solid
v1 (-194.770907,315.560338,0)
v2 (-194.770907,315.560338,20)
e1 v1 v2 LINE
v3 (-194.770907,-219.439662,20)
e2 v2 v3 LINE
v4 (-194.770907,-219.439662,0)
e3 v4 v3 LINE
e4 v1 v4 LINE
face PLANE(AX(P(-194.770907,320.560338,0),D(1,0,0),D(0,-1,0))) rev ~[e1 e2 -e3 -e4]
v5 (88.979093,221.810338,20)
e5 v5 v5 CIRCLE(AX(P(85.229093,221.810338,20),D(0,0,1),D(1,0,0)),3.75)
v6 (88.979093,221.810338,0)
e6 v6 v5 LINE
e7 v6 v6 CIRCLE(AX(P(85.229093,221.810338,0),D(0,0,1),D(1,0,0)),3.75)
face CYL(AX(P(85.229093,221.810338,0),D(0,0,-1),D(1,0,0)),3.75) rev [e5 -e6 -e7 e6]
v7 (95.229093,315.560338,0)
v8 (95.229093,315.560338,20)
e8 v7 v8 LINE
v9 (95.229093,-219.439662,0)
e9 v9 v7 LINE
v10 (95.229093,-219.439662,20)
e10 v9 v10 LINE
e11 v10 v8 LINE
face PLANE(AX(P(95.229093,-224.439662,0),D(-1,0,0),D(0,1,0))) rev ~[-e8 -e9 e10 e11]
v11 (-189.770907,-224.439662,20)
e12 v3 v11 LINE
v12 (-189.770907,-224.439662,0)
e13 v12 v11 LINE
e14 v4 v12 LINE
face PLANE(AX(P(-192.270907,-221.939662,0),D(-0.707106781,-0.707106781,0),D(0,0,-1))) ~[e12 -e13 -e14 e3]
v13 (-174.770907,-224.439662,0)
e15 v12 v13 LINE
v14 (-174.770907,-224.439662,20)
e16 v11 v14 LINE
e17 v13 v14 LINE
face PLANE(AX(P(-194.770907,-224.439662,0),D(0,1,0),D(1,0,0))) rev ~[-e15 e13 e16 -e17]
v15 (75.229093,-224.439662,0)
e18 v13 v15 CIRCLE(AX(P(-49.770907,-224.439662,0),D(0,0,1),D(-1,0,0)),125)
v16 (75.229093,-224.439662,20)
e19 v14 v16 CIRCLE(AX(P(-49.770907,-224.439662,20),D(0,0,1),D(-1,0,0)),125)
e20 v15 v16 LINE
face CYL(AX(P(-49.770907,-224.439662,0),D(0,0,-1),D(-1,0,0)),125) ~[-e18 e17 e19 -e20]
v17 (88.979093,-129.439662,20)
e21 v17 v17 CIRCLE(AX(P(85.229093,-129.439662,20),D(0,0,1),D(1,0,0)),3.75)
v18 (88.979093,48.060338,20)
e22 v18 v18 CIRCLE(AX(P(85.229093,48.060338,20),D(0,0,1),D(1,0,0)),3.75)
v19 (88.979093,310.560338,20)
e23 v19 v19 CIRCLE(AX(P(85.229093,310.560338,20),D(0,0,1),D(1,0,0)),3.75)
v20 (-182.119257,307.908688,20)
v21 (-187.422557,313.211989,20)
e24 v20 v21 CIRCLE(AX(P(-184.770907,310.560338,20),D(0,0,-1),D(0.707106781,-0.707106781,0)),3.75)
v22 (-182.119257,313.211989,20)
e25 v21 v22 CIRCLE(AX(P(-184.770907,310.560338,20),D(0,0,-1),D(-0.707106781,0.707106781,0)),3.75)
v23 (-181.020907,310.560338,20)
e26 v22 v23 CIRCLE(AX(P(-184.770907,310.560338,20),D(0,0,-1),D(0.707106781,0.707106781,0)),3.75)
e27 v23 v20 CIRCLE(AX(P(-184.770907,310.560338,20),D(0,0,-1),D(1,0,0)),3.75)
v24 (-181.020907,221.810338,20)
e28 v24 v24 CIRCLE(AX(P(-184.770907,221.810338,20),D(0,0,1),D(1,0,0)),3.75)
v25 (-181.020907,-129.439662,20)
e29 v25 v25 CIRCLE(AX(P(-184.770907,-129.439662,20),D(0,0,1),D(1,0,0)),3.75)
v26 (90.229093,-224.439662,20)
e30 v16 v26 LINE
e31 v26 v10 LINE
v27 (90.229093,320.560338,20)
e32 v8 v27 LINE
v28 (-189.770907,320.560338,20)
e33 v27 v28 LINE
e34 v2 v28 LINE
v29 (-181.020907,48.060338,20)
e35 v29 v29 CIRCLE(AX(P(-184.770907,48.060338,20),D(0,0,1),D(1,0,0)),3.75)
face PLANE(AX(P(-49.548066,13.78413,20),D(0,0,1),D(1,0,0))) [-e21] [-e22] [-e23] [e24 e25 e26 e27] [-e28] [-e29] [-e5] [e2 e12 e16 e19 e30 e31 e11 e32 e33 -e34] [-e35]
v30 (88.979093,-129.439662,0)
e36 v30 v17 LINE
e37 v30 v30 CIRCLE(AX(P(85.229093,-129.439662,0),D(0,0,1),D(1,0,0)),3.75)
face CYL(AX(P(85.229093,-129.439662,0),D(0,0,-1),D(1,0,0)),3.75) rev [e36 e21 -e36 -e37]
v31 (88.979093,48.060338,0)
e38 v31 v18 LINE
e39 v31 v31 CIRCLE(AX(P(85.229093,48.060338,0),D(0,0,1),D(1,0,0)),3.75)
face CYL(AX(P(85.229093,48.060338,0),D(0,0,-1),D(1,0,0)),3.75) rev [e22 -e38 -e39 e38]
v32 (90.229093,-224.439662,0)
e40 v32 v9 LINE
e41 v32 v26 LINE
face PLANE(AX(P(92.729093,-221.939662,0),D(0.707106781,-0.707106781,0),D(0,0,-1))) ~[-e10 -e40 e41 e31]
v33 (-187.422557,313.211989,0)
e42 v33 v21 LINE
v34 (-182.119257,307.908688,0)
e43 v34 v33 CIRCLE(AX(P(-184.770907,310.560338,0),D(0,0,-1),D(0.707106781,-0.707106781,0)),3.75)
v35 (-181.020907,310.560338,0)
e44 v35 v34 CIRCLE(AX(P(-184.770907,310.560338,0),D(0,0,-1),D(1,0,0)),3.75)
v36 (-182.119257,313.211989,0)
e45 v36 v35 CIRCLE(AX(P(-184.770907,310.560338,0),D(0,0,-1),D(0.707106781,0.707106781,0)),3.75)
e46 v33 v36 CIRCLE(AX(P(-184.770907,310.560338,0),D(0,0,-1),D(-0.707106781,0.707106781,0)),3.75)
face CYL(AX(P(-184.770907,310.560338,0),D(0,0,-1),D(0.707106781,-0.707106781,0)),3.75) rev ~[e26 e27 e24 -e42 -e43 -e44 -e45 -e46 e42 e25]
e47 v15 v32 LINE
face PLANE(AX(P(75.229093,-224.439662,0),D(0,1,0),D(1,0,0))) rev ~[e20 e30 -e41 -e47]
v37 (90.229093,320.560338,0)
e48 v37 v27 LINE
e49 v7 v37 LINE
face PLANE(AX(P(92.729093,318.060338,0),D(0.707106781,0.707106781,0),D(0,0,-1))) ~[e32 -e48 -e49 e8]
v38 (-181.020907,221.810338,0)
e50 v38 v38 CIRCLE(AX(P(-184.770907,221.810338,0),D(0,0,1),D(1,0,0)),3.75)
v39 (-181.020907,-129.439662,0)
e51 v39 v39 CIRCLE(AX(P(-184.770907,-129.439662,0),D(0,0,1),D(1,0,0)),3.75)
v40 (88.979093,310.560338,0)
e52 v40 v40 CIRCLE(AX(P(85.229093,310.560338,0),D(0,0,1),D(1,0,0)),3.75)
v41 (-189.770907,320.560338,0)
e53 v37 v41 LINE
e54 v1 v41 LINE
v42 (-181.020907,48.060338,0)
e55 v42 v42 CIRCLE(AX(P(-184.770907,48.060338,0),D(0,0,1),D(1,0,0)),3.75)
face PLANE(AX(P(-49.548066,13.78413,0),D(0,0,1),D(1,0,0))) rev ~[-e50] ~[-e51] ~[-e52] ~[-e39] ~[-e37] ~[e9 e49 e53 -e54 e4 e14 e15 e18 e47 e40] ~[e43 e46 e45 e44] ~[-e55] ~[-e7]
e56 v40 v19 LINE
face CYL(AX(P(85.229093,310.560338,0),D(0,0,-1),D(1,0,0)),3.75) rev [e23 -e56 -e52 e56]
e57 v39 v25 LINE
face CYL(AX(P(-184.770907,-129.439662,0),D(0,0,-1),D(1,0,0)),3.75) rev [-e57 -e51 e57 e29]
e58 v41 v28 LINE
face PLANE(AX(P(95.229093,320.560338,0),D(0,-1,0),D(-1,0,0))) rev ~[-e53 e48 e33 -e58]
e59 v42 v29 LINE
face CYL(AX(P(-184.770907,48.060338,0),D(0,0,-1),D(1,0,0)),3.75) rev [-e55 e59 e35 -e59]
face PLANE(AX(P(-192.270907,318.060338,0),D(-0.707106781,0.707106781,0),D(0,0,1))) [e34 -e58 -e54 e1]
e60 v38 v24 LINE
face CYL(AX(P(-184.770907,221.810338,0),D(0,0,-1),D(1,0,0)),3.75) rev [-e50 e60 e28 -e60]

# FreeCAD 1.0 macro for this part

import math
import FreeCAD as App
import Part
import Sketcher
Q = App.Units.Quantity


def edges_at(feature, points):
    """Names of the edges that pass closest to the given points."""
    edges = feature.Shape.Edges
    near = lambda p: min(range(len(edges)), key=lambda i: edges[i].distToShape(Part.Vertex(*p))[0])
    return sorted({f"Edge{near(p) + 1}" for p in points})

doc = App.newDocument("Part")
body = doc.addObject("PartDesign::Body", "Body")

sketch1 = doc.addObject("Sketcher::SketchObject", "Sketch")
body.addObject(sketch1)
sketch1.AttachmentSupport = (doc.XY_Plane, [""])
sketch1.MapMode = "FlatFace"
sketch1.addGeometry(Part.LineSegment(App.Vector(-194.8, 320.6, 0), App.Vector(-194.8, -224.4, 0)), False)
sketch1.addGeometry(Part.LineSegment(App.Vector(-194.8, -224.4, 0), App.Vector(-174.8, -224.4, 0)), False)
sketch1.addGeometry(Part.ArcOfCircle(Part.Circle(App.Vector(-49.8, -224.4, 0), App.Vector(0, 0, 1), 125), math.radians(180), math.radians(360)), False)
sketch1.addGeometry(Part.LineSegment(App.Vector(75.2, -224.4, 0), App.Vector(95.2, -224.4, 0)), False)
sketch1.addGeometry(Part.LineSegment(App.Vector(95.2, -224.4, 0), App.Vector(95.2, 320.6, 0)), False)
sketch1.addGeometry(Part.LineSegment(App.Vector(95.2, 320.6, 0), App.Vector(-194.8, 320.6, 0)), False)
sketch1.addGeometry(Part.Circle(App.Vector(-184.8, -129.4, 0), App.Vector(0, 0, 1), 3.8), False)
sketch1.addGeometry(Part.Circle(App.Vector(-184.8, 48.1, 0), App.Vector(0, 0, 1), 3.8), False)
sketch1.addGeometry(Part.Circle(App.Vector(85.2, -129.4, 0), App.Vector(0, 0, 1), 3.8), False)
sketch1.addGeometry(Part.Circle(App.Vector(85.2, 48.1, 0), App.Vector(0, 0, 1), 3.8), False)
sketch1.addGeometry(Part.Circle(App.Vector(-184.8, 221.8, 0), App.Vector(0, 0, 1), 3.8), False)
sketch1.addGeometry(Part.ArcOfCircle(Part.Circle(App.Vector(-184.8, 310.6, 0), App.Vector(0, 0, 1), 3.8), math.radians(-45), math.radians(0)), False)
sketch1.addGeometry(Part.ArcOfCircle(Part.Circle(App.Vector(-184.8, 310.6, 0), App.Vector(0, 0, 1), 3.8), math.radians(135), math.radians(315)), False)
sketch1.addGeometry(Part.ArcOfCircle(Part.Circle(App.Vector(-184.8, 310.6, 0), App.Vector(0, 0, 1), 3.8), math.radians(45), math.radians(135)), False)
sketch1.addGeometry(Part.ArcOfCircle(Part.Circle(App.Vector(-184.8, 310.6, 0), App.Vector(0, 0, 1), 3.8), math.radians(0), math.radians(45)), False)
sketch1.addGeometry(Part.Circle(App.Vector(85.2, 221.8, 0), App.Vector(0, 0, 1), 3.8), False)
sketch1.addGeometry(Part.Circle(App.Vector(85.2, 310.6, 0), App.Vector(0, 0, 1), 3.8), False)
sketch1.addConstraint(Sketcher.Constraint("Coincident", 0, 2, 1, 1))
sketch1.addConstraint(Sketcher.Constraint("Coincident", 1, 2, 2, 1))
sketch1.addConstraint(Sketcher.Constraint("Coincident", 2, 2, 3, 1))
sketch1.addConstraint(Sketcher.Constraint("Coincident", 3, 2, 4, 1))
sketch1.addConstraint(Sketcher.Constraint("Coincident", 4, 2, 5, 1))
sketch1.addConstraint(Sketcher.Constraint("Coincident", 5, 2, 0, 1))
sketch1.addConstraint(Sketcher.Constraint("Tangent", 11, 1, 12, 2))
sketch1.addConstraint(Sketcher.Constraint("Tangent", 12, 1, 13, 2))
sketch1.addConstraint(Sketcher.Constraint("Tangent", 13, 1, 14, 2))
sketch1.addConstraint(Sketcher.Constraint("Tangent", 14, 1, 11, 2))
sketch1.addConstraint(Sketcher.Constraint("Vertical", 0))
sketch1.addConstraint(Sketcher.Constraint("Horizontal", 1))
sketch1.addConstraint(Sketcher.Constraint("Horizontal", 3))
sketch1.addConstraint(Sketcher.Constraint("Vertical", 4))
sketch1.addConstraint(Sketcher.Constraint("Horizontal", 5))
sketch1.addConstraint(Sketcher.Constraint("Equal", 6, 7))
sketch1.addConstraint(Sketcher.Constraint("Equal", 7, 8))
sketch1.addConstraint(Sketcher.Constraint("Equal", 8, 9))
sketch1.addConstraint(Sketcher.Constraint("Equal", 9, 10))
sketch1.addConstraint(Sketcher.Constraint("Equal", 10, 11))
sketch1.addConstraint(Sketcher.Constraint("Equal", 11, 12))
sketch1.addConstraint(Sketcher.Constraint("Equal", 14, 15))
sketch1.addConstraint(Sketcher.Constraint("Equal", 15, 16))
sketch1.addConstraint(Sketcher.Constraint("Horizontal", 6, 3, 8, 3))
sketch1.addConstraint(Sketcher.Constraint("Horizontal", 7, 3, 9, 3))
sketch1.addConstraint(Sketcher.Constraint("Horizontal", 10, 3, 15, 3))
sketch1.addConstraint(Sketcher.Constraint("Horizontal", 14, 3, 16, 3))
sketch1.addConstraint(Sketcher.Constraint("Horizontal", 2, 3, 0, 2))
sketch1.addConstraint(Sketcher.Constraint("Horizontal", 1, 2, 2, 2))
sketch1.addConstraint(Sketcher.Constraint("Horizontal", 12, 1, 13, 1))
sketch1.addConstraint(Sketcher.Constraint("Horizontal", 16, 3, 14, 1))
sketch1.addConstraint(Sketcher.Constraint("Vertical", 6, 3, 7, 3))
sketch1.addConstraint(Sketcher.Constraint("Vertical", 8, 3, 9, 3))
sketch1.addConstraint(Sketcher.Constraint("Vertical", 7, 3, 10, 3))
sketch1.addConstraint(Sketcher.Constraint("Vertical", 10, 3, 11, 3))
sketch1.addConstraint(Sketcher.Constraint("Vertical", 9, 3, 15, 3))
sketch1.addConstraint(Sketcher.Constraint("Vertical", 15, 3, 16, 3))
sketch1.addConstraint(Sketcher.Constraint("Vertical", 11, 1, 13, 1))
sketch1.addConstraint(Sketcher.Constraint("Equal", 1, 3))
sketch1.addConstraint(Sketcher.Constraint("Radius", 2, Q("125 mm")))
sketch1.addConstraint(Sketcher.Constraint("Diameter", 6, Q("7.5 mm")))
sketch1.addConstraint(Sketcher.Constraint("DistanceX", 1, 1, 1, 2, Q("20 mm")))
sketch1.addConstraint(Sketcher.Constraint("DistanceY", 0, 2, 0, 1, Q("545 mm")))
sketch1.addConstraint(Sketcher.Constraint("DistanceX", 6, 3, 2, 3, Q("135 mm")))
sketch1.addConstraint(Sketcher.Constraint("DistanceY", 2, 3, 6, 3, Q("95 mm")))
sketch1.addConstraint(Sketcher.Constraint("DistanceX", 2, 3, 8, 3, Q("135 mm")))
sketch1.addConstraint(Sketcher.Constraint("DistanceY", 6, 3, 11, 3, Q("440 mm")))
sketch1.addConstraint(Sketcher.Constraint("DistanceY", 6, 3, 7, 3, Q("177.5 mm")))
sketch1.addConstraint(Sketcher.Constraint("DistanceY", 7, 3, 10, 3, Q("173.75 mm")))
sketch1.addConstraint(Sketcher.Constraint("DistanceX", 12, 1, 11, 1, Q("5.303301 mm")))
sketch1.addConstraint(Sketcher.Constraint("DistanceY", 2, 3, -1, 1, Q("224.439662 mm")))
sketch1.addConstraint(Sketcher.Constraint("DistanceX", 2, 3, -1, 1, Q("49.770907 mm")))
pad1 = doc.addObject("PartDesign::Pad", "Pad")
body.addObject(pad1)
pad1.Profile = sketch1
pad1.Length = 20
doc.recompute()

chamfer = doc.addObject("PartDesign::Chamfer", "Chamfer")
body.addObject(chamfer)
chamfer.Base = (pad1, edges_at(pad1, [
    (95.229, -224.44, 10),
    (-194.771, -224.44, 10),
    (95.229, 320.56, 10),
    (-194.771, 320.56, 10),
]))
chamfer.Size = 5

doc.recompute()
